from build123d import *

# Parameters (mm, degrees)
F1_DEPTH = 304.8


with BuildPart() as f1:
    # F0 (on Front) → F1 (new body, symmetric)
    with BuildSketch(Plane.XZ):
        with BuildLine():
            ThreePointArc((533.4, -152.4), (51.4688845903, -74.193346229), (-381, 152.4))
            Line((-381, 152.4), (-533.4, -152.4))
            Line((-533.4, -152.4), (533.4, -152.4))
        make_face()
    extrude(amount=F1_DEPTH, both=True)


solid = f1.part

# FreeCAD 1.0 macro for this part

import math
import FreeCAD as App
import Part
import Sketcher
Q = App.Units.Quantity

doc = App.newDocument("Part")
body = doc.addObject("PartDesign::Body", "Body")

# Sketch on XZ plane
sketch1 = doc.addObject("Sketcher::SketchObject", "Sketch")
body.addObject(sketch1)
sketch1.AttachmentSupport = (doc.XZ_Plane, [""])
sketch1.MapMode = "FlatFace"
sketch1.addGeometry([
    Part.ArcOfCircle(Part.Circle(App.Vector(533.4, 1371.6, 0), App.Vector(0, 0, 1), 1524), math.radians(-126.869898), math.radians(-90)),
    Part.LineSegment(App.Vector(-381, 152.4, 0), App.Vector(-533.4, -152.4, 0)),
    Part.LineSegment(App.Vector(-533.4, -152.4, 0), App.Vector(533.4, -152.4, 0)),
], False)
sketch1.addConstraint([
    Sketcher.Constraint("Coincident", 0, 1, 1, 1),
    Sketcher.Constraint("Coincident", 1, 2, 2, 1),
    Sketcher.Constraint("Coincident", 2, 2, 0, 2),
    Sketcher.Constraint("Horizontal", 2),
    Sketcher.Constraint("Vertical", 0, 3, 2, 2),
    Sketcher.Constraint("Radius", 0, Q("60 in")),
    Sketcher.Constraint("DistanceX", 2, 1, 2, 2, Q("42 in")),
    Sketcher.Constraint("DistanceX", -1, 1, 0, 3, Q("21 in")),
    Sketcher.Constraint("DistanceY", -1, 1, 0, 3, Q("54 in")),
    Sketcher.Constraint("Distance", 1, 340.77676),
])
pad1 = doc.addObject("PartDesign::Pad", "Pad")
body.addObject(pad1)
pad1.Profile = sketch1
pad1.Length = Q("24 in")
pad1.Midplane = True

doc.recompute()
